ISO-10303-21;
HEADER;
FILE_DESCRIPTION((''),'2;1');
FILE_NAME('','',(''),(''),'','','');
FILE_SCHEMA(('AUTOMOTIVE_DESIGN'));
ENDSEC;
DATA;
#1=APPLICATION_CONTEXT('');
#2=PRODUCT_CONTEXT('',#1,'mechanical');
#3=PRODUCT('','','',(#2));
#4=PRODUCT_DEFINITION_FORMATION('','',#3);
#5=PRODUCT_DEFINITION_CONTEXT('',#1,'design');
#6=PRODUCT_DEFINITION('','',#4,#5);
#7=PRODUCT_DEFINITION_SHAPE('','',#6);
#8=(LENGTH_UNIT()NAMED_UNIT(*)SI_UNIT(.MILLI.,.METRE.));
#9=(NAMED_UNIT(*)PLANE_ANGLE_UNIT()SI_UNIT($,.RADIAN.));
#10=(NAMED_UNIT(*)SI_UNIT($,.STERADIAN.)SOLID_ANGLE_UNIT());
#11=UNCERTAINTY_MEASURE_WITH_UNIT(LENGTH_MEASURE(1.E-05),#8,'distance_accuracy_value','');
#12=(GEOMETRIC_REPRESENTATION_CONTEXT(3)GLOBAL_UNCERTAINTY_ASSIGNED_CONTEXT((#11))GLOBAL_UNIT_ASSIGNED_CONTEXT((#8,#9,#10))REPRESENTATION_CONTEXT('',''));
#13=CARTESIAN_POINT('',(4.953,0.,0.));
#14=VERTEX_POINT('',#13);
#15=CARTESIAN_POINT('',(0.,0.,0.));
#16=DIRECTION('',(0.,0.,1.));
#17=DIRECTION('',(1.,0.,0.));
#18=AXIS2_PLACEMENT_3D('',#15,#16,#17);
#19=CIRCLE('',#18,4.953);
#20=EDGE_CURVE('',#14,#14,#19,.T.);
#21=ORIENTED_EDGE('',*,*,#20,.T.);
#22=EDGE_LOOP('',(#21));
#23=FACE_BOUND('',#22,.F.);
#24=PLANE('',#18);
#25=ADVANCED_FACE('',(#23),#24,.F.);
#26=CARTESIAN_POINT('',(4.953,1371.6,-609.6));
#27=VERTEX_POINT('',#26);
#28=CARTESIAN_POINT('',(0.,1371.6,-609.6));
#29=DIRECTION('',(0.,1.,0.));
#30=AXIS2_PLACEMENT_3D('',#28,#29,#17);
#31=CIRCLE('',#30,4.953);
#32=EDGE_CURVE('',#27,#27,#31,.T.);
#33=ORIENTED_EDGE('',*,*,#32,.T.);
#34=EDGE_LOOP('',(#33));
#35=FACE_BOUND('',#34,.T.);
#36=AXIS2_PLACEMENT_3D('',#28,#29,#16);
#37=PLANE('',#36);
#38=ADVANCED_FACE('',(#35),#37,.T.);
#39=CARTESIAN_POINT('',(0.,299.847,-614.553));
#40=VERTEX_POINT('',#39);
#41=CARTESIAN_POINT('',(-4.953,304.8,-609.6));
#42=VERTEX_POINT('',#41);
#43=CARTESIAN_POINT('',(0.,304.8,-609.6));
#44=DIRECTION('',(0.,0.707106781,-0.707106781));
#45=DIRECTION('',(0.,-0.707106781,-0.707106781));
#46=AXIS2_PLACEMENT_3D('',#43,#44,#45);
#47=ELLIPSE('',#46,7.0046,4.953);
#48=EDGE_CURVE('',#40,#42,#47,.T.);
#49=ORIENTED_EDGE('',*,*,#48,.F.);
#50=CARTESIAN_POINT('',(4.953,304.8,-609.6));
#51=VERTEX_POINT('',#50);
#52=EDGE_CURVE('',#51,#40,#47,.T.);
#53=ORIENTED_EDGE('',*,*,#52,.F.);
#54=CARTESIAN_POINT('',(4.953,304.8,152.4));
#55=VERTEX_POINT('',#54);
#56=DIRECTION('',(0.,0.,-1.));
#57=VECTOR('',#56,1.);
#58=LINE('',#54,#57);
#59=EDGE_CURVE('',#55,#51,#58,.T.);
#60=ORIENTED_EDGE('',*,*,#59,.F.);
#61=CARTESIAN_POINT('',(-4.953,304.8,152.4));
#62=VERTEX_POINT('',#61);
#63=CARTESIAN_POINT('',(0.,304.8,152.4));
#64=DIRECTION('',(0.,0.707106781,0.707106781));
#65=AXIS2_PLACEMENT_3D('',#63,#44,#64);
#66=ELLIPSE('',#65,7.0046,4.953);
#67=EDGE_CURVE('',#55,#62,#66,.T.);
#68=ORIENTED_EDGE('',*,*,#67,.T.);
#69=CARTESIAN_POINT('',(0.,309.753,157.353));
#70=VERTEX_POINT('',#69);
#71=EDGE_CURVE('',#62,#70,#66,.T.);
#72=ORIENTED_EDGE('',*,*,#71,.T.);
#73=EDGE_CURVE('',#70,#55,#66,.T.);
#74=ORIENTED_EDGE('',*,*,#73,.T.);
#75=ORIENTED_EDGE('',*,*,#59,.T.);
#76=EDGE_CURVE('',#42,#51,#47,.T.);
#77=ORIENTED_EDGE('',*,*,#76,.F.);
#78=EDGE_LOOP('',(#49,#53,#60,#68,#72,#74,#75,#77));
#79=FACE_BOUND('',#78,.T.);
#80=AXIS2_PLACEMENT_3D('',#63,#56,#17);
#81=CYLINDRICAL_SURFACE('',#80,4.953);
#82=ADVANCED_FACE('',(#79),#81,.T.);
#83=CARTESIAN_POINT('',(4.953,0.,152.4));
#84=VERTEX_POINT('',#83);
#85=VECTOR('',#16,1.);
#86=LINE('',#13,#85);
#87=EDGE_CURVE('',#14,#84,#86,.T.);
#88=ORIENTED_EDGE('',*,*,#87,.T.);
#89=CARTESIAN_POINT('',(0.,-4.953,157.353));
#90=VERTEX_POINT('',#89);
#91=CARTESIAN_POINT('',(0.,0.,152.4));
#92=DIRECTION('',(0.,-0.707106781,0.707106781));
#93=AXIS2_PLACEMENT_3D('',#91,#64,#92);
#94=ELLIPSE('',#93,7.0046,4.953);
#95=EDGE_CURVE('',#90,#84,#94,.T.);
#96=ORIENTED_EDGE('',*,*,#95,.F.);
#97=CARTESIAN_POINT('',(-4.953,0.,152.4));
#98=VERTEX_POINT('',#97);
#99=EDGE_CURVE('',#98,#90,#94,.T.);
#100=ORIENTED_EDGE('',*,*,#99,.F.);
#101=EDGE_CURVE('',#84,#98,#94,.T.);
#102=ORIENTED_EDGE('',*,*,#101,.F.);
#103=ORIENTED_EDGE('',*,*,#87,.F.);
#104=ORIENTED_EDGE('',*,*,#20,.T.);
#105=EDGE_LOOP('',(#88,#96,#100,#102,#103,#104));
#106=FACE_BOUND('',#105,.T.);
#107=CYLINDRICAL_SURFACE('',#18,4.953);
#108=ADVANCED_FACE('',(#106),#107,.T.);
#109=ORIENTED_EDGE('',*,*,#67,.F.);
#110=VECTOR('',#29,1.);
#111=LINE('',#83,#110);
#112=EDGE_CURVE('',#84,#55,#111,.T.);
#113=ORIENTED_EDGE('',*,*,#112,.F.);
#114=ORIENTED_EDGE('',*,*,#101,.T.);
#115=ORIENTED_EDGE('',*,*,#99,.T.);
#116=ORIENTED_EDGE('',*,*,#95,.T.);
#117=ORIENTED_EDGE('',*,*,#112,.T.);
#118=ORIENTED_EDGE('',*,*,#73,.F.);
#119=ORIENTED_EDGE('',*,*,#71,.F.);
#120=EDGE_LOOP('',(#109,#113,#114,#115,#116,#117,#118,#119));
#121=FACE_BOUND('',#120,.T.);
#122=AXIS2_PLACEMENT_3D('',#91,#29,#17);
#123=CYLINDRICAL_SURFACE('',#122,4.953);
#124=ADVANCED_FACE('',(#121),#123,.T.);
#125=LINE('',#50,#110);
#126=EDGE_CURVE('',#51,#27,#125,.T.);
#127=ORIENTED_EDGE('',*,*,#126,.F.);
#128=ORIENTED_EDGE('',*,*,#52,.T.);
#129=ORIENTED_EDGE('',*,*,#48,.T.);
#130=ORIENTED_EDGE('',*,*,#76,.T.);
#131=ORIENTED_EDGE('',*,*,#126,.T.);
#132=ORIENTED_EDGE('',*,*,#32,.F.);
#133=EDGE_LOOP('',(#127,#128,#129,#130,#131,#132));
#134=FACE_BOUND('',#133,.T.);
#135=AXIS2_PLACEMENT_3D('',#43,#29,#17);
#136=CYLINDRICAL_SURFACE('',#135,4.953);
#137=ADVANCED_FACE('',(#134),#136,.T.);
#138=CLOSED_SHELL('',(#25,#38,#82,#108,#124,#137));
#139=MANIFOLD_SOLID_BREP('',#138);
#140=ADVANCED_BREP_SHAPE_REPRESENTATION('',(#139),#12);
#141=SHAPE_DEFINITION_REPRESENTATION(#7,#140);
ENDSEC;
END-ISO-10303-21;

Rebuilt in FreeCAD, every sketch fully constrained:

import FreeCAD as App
import Part
import Sketcher
from FreeCAD import Vector
Q = App.Units.Quantity

doc = App.newDocument("Part")
params = doc.addObject("Spreadsheet::Sheet", "Params")
for row, (alias, value) in enumerate([
    ("sketch1_diameter", "0.39 in"),
    ("sketch2_width", "12 in"),
    ("sketch2_width2", "42 in"),
    ("sketch2_height", "6 in"),
    ("sketch2_height2", "30 in"),
], start=1):
    params.set(f"A{row}", alias)
    params.set(f"B{row}", "=" + value)
    params.setAlias(f"B{row}", alias)

body = doc.addObject("PartDesign::Body", "Body")

sketch1 = body.newObject("Sketcher::SketchObject", "Sketch")
sketch1.AttachmentSupport = (doc.getObject("XY_Plane"), [""])
sketch1.MapMode = "FlatFace"
sketch1.addGeometry(Part.Circle(Vector(0, 0, 0), Vector(0, 0, 1), 5), False)
sketch1.addConstraint([
    Sketcher.Constraint("Coincident", 0, 3, -1, 1),
    Sketcher.Constraint("Diameter", 0, Q("0.39 in")),
])
sketch1.setExpression("Constraints[1]", "Params.sketch1_diameter")

sketch2 = body.newObject("Sketcher::SketchObject", "Sketch001")
sketch2.AttachmentSupport = (doc.getObject("YZ_Plane"), [""])
sketch2.MapMode = "FlatFace"
sketch2.addGeometry([
    Part.LineSegment(Vector(0, 0, 0), Vector(0, 152, 0)),
    Part.LineSegment(Vector(0, 152, 0), Vector(305, 152, 0)),
    Part.LineSegment(Vector(305, 152, 0), Vector(305, -610, 0)),
    Part.LineSegment(Vector(305, -610, 0), Vector(1372, -610, 0)),
], False)
sketch2.addConstraint([
    Sketcher.Constraint("Coincident", 0, 2, 1, 1),
    Sketcher.Constraint("Coincident", 1, 2, 2, 1),
    Sketcher.Constraint("Coincident", 2, 2, 3, 1),
    Sketcher.Constraint("Vertical", 0),
    Sketcher.Constraint("Horizontal", 1),
    Sketcher.Constraint("Vertical", 2),
    Sketcher.Constraint("Horizontal", 3),
    Sketcher.Constraint("Coincident", 0, 1, -1, 1),
    Sketcher.Constraint("DistanceX", 1, 1, 1, 2, Q("12 in")),
    Sketcher.Constraint("DistanceX", 3, 1, 3, 2, Q("42 in")),
    Sketcher.Constraint("DistanceY", 0, 1, 0, 2, Q("6 in")),
    Sketcher.Constraint("DistanceY", 2, 2, 2, 1, Q("30 in")),
])
sketch2.setExpression("Constraints[8]", "Params.sketch2_width")
sketch2.setExpression("Constraints[9]", "Params.sketch2_width2")
sketch2.setExpression("Constraints[10]", "Params.sketch2_height")
sketch2.setExpression("Constraints[11]", "Params.sketch2_height2")
doc.recompute()

additivepipe = body.newObject("PartDesign::AdditivePipe", "AdditivePipe")
additivepipe.Profile = sketch1
additivepipe.Spine = (sketch2, ["Edge1", "Edge2", "Edge3", "Edge4"])
additivepipe.Transition = "Right corner"

doc.recompute()
